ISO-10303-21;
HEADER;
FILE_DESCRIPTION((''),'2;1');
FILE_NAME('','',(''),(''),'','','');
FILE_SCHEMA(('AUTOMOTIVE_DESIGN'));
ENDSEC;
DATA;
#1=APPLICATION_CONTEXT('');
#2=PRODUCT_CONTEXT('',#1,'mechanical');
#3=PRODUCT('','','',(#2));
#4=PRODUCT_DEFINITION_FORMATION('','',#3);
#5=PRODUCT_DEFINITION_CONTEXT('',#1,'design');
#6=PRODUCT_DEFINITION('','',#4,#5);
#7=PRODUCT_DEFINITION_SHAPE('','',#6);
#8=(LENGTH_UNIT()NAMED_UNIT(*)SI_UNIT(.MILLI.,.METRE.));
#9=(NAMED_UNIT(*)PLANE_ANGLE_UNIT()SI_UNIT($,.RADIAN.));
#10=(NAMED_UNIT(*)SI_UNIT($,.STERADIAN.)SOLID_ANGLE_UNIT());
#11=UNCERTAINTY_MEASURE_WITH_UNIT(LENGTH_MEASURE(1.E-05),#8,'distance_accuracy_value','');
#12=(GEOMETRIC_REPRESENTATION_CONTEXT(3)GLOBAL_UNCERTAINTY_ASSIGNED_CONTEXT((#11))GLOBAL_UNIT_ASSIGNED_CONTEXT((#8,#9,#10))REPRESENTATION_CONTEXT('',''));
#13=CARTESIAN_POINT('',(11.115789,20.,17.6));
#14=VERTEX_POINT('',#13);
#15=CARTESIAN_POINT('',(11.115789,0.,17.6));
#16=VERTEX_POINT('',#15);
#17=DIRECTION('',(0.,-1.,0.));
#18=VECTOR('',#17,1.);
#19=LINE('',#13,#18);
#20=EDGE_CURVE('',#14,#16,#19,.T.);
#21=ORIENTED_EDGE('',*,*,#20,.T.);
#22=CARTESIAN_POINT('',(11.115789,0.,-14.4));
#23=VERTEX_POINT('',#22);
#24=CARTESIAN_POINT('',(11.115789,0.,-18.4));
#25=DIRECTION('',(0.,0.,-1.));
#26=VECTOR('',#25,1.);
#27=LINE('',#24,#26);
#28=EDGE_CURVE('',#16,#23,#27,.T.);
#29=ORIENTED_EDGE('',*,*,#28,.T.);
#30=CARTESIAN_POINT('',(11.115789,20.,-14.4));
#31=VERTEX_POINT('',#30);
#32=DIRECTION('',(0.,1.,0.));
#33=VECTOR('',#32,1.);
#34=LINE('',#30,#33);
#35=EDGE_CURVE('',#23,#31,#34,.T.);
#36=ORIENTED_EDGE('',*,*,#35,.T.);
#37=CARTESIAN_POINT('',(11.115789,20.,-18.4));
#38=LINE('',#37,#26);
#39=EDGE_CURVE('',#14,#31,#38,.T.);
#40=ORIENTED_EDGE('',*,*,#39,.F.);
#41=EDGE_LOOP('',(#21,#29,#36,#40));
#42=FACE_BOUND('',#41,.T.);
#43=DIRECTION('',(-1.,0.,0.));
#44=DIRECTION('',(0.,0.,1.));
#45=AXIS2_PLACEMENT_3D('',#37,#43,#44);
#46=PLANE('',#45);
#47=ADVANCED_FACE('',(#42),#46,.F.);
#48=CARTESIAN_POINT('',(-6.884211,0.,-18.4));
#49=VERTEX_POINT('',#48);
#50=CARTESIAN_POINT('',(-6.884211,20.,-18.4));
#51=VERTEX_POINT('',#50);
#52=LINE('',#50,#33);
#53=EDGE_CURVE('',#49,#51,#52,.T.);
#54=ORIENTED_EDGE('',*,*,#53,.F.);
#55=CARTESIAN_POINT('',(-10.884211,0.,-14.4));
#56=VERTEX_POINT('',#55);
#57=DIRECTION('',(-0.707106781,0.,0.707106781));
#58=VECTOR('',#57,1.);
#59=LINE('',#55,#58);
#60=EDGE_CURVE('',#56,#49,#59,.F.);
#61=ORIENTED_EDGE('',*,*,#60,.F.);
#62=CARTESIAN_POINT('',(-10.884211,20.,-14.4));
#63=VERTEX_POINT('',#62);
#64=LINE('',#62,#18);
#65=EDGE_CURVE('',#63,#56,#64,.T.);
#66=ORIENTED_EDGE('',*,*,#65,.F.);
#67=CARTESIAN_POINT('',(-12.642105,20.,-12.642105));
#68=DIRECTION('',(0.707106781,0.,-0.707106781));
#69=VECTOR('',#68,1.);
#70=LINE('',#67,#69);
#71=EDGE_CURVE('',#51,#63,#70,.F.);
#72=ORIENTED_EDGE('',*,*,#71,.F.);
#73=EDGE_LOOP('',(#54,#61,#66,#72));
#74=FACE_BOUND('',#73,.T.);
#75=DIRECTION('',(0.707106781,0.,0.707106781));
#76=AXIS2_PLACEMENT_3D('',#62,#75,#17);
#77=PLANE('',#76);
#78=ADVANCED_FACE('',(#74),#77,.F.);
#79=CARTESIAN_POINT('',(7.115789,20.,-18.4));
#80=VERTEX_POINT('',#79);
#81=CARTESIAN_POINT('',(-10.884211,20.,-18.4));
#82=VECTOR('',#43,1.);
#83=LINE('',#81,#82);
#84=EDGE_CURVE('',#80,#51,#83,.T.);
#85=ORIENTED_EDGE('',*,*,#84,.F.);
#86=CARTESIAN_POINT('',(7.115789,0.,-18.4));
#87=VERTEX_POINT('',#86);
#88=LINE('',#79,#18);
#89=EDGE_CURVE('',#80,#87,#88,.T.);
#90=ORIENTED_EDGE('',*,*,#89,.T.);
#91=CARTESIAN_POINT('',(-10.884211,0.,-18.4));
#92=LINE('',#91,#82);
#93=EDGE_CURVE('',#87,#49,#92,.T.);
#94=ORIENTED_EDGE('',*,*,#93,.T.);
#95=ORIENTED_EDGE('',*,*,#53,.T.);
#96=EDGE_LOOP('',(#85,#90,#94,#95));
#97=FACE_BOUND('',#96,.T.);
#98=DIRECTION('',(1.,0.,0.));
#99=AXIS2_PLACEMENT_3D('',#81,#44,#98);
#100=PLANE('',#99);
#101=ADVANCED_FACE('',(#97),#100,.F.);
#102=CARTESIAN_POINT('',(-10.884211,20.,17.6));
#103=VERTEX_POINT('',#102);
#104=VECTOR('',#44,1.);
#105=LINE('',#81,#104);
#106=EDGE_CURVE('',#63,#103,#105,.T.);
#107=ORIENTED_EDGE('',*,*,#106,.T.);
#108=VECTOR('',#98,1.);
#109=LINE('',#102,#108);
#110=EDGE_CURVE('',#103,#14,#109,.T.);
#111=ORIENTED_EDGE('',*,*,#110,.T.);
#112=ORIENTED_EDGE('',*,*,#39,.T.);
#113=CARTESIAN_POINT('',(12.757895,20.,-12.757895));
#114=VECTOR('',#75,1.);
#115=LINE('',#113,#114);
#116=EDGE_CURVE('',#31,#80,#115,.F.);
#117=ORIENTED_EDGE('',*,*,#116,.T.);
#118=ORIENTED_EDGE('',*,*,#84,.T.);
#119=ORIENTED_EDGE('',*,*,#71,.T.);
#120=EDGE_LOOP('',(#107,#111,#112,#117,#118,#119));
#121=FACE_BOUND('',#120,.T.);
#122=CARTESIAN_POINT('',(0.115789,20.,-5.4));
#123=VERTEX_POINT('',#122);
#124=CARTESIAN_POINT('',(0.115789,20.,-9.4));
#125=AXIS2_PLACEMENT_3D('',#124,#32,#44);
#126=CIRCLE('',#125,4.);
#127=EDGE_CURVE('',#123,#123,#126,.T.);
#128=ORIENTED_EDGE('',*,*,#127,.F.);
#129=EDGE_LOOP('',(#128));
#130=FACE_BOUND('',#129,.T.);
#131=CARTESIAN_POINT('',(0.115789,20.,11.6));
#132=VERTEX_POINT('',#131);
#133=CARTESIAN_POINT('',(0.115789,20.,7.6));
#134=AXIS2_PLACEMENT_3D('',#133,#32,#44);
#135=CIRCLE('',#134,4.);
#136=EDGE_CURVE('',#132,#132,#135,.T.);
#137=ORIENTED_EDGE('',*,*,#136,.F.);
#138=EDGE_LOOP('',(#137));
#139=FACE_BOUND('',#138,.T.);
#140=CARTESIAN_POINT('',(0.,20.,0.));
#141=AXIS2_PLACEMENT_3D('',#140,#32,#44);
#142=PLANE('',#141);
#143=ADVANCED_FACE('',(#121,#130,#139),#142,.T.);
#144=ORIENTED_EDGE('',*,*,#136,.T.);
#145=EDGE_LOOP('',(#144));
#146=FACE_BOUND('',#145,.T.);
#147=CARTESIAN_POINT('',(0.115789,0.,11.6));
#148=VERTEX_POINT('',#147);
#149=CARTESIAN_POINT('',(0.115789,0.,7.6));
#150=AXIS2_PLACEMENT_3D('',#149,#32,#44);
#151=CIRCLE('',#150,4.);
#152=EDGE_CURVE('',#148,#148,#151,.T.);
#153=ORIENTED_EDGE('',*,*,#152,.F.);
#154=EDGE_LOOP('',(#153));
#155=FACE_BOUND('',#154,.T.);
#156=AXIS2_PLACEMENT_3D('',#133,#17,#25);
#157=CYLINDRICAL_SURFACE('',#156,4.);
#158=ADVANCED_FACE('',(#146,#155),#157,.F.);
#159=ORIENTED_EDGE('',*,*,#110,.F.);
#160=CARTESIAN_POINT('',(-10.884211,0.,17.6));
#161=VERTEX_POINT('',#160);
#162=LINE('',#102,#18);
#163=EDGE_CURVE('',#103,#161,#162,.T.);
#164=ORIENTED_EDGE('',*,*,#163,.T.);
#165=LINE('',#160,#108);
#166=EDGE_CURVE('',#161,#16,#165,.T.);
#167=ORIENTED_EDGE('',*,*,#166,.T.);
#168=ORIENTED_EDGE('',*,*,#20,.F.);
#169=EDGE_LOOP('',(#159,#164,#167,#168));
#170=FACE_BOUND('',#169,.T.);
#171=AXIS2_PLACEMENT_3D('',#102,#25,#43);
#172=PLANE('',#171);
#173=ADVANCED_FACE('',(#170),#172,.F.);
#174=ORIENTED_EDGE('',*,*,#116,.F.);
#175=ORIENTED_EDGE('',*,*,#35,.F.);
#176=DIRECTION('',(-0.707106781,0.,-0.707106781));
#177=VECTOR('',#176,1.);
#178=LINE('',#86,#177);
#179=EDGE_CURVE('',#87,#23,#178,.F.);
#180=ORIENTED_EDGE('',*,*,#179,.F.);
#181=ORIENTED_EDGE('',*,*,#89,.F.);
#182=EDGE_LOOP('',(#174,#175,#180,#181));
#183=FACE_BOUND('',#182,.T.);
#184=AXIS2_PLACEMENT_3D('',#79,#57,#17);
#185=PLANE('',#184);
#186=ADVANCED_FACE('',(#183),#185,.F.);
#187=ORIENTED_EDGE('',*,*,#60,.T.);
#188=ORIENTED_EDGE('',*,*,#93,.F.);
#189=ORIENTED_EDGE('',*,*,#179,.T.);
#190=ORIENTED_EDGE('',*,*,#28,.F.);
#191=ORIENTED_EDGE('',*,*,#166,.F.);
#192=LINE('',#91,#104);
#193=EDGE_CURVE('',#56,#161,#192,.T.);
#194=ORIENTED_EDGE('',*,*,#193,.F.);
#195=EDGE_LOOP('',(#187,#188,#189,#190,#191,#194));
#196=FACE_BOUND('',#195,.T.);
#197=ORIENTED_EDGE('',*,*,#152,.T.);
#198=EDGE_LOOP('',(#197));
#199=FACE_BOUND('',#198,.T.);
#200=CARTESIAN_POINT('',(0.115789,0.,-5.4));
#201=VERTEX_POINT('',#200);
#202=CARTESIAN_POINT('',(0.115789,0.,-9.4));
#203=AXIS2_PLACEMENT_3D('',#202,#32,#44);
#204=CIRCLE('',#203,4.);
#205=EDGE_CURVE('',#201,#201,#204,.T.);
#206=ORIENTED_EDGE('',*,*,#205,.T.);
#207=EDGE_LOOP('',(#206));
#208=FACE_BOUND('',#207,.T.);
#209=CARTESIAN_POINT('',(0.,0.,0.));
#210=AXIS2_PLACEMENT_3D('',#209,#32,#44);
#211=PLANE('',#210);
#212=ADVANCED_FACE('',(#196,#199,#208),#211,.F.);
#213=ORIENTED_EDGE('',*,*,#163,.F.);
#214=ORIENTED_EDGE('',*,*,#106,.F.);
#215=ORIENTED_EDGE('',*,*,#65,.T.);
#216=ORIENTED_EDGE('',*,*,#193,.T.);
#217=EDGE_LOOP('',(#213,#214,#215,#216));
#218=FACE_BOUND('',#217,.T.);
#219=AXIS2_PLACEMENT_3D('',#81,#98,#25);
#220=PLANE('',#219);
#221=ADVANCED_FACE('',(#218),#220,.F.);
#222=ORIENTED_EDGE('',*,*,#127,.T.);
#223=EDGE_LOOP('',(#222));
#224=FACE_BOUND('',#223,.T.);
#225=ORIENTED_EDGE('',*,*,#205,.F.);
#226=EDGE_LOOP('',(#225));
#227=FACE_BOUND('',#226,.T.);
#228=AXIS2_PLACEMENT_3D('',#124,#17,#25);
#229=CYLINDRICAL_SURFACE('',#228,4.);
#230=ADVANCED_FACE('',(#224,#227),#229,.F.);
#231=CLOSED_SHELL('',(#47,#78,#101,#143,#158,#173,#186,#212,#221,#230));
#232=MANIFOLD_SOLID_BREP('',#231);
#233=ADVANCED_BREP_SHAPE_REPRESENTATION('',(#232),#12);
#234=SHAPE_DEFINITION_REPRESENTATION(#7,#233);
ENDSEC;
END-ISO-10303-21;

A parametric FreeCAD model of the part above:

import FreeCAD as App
import Part
import Sketcher
from FreeCAD import Vector
Q = App.Units.Quantity


def edges_at(feature, points):
    """Names of the edges that pass closest to the given points."""
    edges = feature.Shape.Edges
    near = lambda p: min(range(len(edges)), key=lambda i: edges[i].distToShape(Part.Vertex(*p))[0])
    return sorted({f"Edge{near(p) + 1}" for p in points})

doc = App.newDocument("Part")
body = doc.addObject("PartDesign::Body", "Body")

# Sketch on XZ plane
sketch1 = body.newObject("Sketcher::SketchObject", "Sketch")
sketch1.AttachmentSupport = (doc.getObject("XZ_Plane"), [""])
sketch1.MapMode = "FlatFace"
sketch1.addGeometry([
    Part.LineSegment(Vector(-10.884211, -18.4, 0), Vector(-10.884211, 17.6, 0)),  # 0
    Part.LineSegment(Vector(-10.884211, 17.6, 0), Vector(11.115789, 17.6, 0)),  # 1
    Part.LineSegment(Vector(11.115789, 17.6, 0), Vector(11.115789, -18.4, 0)),  # 2
    Part.LineSegment(Vector(11.115789, -18.4, 0), Vector(-10.884211, -18.4, 0)),  # 3
    Part.Circle(Vector(0.115789, 7.6, 0), Vector(0, 0, 1), 4),  # 4
    Part.Circle(Vector(0.115789, -9.4, 0), Vector(0, 0, 1), 4),  # 5
], False)
sketch1.addConstraint([
    Sketcher.Constraint("Coincident", 0, 2, 1, 1),
    Sketcher.Constraint("Coincident", 1, 2, 2, 1),
    Sketcher.Constraint("Coincident", 2, 2, 3, 1),
    Sketcher.Constraint("Coincident", 3, 2, 0, 1),
    Sketcher.Constraint("Vertical", 0),
    Sketcher.Constraint("Horizontal", 1),
    Sketcher.Constraint("Vertical", 2),
    Sketcher.Constraint("Horizontal", 3),
    Sketcher.Constraint("Equal", 4, 5),
    Sketcher.Constraint("Vertical", 4, 3, 5, 3),
    Sketcher.Constraint("Diameter", 4, Q("8 mm")),
    Sketcher.Constraint("DistanceX", 1, 1, 1, 2, Q("22 mm")),
    Sketcher.Constraint("DistanceY", 0, 1, 0, 2, Q("36 mm")),
    Sketcher.Constraint("DistanceY", 5, 3, 4, 3, Q("17 mm")),
    Sketcher.Constraint("DistanceX", 0, 2, 4, 3, Q("11 mm")),
    Sketcher.Constraint("DistanceY", 4, 3, 0, 2, Q("10 mm")),
    Sketcher.Constraint("DistanceY", -1, 1, 4, 3, Q("7.6 mm")),
    Sketcher.Constraint("DistanceX", -1, 1, 4, 3, Q("0.115789 mm")),
])
pad1 = body.newObject("PartDesign::Pad", "Pad")
pad1.Profile = sketch1
pad1.Length = 20
pad1.Reversed = True
doc.recompute()

chamfer = body.newObject("PartDesign::Chamfer", "Chamfer")
chamfer.Base = (pad1, edges_at(pad1, [(-10.884, 10, -18.4), (11.116, 10, -18.4)]))
chamfer.Size = 4

doc.recompute()
